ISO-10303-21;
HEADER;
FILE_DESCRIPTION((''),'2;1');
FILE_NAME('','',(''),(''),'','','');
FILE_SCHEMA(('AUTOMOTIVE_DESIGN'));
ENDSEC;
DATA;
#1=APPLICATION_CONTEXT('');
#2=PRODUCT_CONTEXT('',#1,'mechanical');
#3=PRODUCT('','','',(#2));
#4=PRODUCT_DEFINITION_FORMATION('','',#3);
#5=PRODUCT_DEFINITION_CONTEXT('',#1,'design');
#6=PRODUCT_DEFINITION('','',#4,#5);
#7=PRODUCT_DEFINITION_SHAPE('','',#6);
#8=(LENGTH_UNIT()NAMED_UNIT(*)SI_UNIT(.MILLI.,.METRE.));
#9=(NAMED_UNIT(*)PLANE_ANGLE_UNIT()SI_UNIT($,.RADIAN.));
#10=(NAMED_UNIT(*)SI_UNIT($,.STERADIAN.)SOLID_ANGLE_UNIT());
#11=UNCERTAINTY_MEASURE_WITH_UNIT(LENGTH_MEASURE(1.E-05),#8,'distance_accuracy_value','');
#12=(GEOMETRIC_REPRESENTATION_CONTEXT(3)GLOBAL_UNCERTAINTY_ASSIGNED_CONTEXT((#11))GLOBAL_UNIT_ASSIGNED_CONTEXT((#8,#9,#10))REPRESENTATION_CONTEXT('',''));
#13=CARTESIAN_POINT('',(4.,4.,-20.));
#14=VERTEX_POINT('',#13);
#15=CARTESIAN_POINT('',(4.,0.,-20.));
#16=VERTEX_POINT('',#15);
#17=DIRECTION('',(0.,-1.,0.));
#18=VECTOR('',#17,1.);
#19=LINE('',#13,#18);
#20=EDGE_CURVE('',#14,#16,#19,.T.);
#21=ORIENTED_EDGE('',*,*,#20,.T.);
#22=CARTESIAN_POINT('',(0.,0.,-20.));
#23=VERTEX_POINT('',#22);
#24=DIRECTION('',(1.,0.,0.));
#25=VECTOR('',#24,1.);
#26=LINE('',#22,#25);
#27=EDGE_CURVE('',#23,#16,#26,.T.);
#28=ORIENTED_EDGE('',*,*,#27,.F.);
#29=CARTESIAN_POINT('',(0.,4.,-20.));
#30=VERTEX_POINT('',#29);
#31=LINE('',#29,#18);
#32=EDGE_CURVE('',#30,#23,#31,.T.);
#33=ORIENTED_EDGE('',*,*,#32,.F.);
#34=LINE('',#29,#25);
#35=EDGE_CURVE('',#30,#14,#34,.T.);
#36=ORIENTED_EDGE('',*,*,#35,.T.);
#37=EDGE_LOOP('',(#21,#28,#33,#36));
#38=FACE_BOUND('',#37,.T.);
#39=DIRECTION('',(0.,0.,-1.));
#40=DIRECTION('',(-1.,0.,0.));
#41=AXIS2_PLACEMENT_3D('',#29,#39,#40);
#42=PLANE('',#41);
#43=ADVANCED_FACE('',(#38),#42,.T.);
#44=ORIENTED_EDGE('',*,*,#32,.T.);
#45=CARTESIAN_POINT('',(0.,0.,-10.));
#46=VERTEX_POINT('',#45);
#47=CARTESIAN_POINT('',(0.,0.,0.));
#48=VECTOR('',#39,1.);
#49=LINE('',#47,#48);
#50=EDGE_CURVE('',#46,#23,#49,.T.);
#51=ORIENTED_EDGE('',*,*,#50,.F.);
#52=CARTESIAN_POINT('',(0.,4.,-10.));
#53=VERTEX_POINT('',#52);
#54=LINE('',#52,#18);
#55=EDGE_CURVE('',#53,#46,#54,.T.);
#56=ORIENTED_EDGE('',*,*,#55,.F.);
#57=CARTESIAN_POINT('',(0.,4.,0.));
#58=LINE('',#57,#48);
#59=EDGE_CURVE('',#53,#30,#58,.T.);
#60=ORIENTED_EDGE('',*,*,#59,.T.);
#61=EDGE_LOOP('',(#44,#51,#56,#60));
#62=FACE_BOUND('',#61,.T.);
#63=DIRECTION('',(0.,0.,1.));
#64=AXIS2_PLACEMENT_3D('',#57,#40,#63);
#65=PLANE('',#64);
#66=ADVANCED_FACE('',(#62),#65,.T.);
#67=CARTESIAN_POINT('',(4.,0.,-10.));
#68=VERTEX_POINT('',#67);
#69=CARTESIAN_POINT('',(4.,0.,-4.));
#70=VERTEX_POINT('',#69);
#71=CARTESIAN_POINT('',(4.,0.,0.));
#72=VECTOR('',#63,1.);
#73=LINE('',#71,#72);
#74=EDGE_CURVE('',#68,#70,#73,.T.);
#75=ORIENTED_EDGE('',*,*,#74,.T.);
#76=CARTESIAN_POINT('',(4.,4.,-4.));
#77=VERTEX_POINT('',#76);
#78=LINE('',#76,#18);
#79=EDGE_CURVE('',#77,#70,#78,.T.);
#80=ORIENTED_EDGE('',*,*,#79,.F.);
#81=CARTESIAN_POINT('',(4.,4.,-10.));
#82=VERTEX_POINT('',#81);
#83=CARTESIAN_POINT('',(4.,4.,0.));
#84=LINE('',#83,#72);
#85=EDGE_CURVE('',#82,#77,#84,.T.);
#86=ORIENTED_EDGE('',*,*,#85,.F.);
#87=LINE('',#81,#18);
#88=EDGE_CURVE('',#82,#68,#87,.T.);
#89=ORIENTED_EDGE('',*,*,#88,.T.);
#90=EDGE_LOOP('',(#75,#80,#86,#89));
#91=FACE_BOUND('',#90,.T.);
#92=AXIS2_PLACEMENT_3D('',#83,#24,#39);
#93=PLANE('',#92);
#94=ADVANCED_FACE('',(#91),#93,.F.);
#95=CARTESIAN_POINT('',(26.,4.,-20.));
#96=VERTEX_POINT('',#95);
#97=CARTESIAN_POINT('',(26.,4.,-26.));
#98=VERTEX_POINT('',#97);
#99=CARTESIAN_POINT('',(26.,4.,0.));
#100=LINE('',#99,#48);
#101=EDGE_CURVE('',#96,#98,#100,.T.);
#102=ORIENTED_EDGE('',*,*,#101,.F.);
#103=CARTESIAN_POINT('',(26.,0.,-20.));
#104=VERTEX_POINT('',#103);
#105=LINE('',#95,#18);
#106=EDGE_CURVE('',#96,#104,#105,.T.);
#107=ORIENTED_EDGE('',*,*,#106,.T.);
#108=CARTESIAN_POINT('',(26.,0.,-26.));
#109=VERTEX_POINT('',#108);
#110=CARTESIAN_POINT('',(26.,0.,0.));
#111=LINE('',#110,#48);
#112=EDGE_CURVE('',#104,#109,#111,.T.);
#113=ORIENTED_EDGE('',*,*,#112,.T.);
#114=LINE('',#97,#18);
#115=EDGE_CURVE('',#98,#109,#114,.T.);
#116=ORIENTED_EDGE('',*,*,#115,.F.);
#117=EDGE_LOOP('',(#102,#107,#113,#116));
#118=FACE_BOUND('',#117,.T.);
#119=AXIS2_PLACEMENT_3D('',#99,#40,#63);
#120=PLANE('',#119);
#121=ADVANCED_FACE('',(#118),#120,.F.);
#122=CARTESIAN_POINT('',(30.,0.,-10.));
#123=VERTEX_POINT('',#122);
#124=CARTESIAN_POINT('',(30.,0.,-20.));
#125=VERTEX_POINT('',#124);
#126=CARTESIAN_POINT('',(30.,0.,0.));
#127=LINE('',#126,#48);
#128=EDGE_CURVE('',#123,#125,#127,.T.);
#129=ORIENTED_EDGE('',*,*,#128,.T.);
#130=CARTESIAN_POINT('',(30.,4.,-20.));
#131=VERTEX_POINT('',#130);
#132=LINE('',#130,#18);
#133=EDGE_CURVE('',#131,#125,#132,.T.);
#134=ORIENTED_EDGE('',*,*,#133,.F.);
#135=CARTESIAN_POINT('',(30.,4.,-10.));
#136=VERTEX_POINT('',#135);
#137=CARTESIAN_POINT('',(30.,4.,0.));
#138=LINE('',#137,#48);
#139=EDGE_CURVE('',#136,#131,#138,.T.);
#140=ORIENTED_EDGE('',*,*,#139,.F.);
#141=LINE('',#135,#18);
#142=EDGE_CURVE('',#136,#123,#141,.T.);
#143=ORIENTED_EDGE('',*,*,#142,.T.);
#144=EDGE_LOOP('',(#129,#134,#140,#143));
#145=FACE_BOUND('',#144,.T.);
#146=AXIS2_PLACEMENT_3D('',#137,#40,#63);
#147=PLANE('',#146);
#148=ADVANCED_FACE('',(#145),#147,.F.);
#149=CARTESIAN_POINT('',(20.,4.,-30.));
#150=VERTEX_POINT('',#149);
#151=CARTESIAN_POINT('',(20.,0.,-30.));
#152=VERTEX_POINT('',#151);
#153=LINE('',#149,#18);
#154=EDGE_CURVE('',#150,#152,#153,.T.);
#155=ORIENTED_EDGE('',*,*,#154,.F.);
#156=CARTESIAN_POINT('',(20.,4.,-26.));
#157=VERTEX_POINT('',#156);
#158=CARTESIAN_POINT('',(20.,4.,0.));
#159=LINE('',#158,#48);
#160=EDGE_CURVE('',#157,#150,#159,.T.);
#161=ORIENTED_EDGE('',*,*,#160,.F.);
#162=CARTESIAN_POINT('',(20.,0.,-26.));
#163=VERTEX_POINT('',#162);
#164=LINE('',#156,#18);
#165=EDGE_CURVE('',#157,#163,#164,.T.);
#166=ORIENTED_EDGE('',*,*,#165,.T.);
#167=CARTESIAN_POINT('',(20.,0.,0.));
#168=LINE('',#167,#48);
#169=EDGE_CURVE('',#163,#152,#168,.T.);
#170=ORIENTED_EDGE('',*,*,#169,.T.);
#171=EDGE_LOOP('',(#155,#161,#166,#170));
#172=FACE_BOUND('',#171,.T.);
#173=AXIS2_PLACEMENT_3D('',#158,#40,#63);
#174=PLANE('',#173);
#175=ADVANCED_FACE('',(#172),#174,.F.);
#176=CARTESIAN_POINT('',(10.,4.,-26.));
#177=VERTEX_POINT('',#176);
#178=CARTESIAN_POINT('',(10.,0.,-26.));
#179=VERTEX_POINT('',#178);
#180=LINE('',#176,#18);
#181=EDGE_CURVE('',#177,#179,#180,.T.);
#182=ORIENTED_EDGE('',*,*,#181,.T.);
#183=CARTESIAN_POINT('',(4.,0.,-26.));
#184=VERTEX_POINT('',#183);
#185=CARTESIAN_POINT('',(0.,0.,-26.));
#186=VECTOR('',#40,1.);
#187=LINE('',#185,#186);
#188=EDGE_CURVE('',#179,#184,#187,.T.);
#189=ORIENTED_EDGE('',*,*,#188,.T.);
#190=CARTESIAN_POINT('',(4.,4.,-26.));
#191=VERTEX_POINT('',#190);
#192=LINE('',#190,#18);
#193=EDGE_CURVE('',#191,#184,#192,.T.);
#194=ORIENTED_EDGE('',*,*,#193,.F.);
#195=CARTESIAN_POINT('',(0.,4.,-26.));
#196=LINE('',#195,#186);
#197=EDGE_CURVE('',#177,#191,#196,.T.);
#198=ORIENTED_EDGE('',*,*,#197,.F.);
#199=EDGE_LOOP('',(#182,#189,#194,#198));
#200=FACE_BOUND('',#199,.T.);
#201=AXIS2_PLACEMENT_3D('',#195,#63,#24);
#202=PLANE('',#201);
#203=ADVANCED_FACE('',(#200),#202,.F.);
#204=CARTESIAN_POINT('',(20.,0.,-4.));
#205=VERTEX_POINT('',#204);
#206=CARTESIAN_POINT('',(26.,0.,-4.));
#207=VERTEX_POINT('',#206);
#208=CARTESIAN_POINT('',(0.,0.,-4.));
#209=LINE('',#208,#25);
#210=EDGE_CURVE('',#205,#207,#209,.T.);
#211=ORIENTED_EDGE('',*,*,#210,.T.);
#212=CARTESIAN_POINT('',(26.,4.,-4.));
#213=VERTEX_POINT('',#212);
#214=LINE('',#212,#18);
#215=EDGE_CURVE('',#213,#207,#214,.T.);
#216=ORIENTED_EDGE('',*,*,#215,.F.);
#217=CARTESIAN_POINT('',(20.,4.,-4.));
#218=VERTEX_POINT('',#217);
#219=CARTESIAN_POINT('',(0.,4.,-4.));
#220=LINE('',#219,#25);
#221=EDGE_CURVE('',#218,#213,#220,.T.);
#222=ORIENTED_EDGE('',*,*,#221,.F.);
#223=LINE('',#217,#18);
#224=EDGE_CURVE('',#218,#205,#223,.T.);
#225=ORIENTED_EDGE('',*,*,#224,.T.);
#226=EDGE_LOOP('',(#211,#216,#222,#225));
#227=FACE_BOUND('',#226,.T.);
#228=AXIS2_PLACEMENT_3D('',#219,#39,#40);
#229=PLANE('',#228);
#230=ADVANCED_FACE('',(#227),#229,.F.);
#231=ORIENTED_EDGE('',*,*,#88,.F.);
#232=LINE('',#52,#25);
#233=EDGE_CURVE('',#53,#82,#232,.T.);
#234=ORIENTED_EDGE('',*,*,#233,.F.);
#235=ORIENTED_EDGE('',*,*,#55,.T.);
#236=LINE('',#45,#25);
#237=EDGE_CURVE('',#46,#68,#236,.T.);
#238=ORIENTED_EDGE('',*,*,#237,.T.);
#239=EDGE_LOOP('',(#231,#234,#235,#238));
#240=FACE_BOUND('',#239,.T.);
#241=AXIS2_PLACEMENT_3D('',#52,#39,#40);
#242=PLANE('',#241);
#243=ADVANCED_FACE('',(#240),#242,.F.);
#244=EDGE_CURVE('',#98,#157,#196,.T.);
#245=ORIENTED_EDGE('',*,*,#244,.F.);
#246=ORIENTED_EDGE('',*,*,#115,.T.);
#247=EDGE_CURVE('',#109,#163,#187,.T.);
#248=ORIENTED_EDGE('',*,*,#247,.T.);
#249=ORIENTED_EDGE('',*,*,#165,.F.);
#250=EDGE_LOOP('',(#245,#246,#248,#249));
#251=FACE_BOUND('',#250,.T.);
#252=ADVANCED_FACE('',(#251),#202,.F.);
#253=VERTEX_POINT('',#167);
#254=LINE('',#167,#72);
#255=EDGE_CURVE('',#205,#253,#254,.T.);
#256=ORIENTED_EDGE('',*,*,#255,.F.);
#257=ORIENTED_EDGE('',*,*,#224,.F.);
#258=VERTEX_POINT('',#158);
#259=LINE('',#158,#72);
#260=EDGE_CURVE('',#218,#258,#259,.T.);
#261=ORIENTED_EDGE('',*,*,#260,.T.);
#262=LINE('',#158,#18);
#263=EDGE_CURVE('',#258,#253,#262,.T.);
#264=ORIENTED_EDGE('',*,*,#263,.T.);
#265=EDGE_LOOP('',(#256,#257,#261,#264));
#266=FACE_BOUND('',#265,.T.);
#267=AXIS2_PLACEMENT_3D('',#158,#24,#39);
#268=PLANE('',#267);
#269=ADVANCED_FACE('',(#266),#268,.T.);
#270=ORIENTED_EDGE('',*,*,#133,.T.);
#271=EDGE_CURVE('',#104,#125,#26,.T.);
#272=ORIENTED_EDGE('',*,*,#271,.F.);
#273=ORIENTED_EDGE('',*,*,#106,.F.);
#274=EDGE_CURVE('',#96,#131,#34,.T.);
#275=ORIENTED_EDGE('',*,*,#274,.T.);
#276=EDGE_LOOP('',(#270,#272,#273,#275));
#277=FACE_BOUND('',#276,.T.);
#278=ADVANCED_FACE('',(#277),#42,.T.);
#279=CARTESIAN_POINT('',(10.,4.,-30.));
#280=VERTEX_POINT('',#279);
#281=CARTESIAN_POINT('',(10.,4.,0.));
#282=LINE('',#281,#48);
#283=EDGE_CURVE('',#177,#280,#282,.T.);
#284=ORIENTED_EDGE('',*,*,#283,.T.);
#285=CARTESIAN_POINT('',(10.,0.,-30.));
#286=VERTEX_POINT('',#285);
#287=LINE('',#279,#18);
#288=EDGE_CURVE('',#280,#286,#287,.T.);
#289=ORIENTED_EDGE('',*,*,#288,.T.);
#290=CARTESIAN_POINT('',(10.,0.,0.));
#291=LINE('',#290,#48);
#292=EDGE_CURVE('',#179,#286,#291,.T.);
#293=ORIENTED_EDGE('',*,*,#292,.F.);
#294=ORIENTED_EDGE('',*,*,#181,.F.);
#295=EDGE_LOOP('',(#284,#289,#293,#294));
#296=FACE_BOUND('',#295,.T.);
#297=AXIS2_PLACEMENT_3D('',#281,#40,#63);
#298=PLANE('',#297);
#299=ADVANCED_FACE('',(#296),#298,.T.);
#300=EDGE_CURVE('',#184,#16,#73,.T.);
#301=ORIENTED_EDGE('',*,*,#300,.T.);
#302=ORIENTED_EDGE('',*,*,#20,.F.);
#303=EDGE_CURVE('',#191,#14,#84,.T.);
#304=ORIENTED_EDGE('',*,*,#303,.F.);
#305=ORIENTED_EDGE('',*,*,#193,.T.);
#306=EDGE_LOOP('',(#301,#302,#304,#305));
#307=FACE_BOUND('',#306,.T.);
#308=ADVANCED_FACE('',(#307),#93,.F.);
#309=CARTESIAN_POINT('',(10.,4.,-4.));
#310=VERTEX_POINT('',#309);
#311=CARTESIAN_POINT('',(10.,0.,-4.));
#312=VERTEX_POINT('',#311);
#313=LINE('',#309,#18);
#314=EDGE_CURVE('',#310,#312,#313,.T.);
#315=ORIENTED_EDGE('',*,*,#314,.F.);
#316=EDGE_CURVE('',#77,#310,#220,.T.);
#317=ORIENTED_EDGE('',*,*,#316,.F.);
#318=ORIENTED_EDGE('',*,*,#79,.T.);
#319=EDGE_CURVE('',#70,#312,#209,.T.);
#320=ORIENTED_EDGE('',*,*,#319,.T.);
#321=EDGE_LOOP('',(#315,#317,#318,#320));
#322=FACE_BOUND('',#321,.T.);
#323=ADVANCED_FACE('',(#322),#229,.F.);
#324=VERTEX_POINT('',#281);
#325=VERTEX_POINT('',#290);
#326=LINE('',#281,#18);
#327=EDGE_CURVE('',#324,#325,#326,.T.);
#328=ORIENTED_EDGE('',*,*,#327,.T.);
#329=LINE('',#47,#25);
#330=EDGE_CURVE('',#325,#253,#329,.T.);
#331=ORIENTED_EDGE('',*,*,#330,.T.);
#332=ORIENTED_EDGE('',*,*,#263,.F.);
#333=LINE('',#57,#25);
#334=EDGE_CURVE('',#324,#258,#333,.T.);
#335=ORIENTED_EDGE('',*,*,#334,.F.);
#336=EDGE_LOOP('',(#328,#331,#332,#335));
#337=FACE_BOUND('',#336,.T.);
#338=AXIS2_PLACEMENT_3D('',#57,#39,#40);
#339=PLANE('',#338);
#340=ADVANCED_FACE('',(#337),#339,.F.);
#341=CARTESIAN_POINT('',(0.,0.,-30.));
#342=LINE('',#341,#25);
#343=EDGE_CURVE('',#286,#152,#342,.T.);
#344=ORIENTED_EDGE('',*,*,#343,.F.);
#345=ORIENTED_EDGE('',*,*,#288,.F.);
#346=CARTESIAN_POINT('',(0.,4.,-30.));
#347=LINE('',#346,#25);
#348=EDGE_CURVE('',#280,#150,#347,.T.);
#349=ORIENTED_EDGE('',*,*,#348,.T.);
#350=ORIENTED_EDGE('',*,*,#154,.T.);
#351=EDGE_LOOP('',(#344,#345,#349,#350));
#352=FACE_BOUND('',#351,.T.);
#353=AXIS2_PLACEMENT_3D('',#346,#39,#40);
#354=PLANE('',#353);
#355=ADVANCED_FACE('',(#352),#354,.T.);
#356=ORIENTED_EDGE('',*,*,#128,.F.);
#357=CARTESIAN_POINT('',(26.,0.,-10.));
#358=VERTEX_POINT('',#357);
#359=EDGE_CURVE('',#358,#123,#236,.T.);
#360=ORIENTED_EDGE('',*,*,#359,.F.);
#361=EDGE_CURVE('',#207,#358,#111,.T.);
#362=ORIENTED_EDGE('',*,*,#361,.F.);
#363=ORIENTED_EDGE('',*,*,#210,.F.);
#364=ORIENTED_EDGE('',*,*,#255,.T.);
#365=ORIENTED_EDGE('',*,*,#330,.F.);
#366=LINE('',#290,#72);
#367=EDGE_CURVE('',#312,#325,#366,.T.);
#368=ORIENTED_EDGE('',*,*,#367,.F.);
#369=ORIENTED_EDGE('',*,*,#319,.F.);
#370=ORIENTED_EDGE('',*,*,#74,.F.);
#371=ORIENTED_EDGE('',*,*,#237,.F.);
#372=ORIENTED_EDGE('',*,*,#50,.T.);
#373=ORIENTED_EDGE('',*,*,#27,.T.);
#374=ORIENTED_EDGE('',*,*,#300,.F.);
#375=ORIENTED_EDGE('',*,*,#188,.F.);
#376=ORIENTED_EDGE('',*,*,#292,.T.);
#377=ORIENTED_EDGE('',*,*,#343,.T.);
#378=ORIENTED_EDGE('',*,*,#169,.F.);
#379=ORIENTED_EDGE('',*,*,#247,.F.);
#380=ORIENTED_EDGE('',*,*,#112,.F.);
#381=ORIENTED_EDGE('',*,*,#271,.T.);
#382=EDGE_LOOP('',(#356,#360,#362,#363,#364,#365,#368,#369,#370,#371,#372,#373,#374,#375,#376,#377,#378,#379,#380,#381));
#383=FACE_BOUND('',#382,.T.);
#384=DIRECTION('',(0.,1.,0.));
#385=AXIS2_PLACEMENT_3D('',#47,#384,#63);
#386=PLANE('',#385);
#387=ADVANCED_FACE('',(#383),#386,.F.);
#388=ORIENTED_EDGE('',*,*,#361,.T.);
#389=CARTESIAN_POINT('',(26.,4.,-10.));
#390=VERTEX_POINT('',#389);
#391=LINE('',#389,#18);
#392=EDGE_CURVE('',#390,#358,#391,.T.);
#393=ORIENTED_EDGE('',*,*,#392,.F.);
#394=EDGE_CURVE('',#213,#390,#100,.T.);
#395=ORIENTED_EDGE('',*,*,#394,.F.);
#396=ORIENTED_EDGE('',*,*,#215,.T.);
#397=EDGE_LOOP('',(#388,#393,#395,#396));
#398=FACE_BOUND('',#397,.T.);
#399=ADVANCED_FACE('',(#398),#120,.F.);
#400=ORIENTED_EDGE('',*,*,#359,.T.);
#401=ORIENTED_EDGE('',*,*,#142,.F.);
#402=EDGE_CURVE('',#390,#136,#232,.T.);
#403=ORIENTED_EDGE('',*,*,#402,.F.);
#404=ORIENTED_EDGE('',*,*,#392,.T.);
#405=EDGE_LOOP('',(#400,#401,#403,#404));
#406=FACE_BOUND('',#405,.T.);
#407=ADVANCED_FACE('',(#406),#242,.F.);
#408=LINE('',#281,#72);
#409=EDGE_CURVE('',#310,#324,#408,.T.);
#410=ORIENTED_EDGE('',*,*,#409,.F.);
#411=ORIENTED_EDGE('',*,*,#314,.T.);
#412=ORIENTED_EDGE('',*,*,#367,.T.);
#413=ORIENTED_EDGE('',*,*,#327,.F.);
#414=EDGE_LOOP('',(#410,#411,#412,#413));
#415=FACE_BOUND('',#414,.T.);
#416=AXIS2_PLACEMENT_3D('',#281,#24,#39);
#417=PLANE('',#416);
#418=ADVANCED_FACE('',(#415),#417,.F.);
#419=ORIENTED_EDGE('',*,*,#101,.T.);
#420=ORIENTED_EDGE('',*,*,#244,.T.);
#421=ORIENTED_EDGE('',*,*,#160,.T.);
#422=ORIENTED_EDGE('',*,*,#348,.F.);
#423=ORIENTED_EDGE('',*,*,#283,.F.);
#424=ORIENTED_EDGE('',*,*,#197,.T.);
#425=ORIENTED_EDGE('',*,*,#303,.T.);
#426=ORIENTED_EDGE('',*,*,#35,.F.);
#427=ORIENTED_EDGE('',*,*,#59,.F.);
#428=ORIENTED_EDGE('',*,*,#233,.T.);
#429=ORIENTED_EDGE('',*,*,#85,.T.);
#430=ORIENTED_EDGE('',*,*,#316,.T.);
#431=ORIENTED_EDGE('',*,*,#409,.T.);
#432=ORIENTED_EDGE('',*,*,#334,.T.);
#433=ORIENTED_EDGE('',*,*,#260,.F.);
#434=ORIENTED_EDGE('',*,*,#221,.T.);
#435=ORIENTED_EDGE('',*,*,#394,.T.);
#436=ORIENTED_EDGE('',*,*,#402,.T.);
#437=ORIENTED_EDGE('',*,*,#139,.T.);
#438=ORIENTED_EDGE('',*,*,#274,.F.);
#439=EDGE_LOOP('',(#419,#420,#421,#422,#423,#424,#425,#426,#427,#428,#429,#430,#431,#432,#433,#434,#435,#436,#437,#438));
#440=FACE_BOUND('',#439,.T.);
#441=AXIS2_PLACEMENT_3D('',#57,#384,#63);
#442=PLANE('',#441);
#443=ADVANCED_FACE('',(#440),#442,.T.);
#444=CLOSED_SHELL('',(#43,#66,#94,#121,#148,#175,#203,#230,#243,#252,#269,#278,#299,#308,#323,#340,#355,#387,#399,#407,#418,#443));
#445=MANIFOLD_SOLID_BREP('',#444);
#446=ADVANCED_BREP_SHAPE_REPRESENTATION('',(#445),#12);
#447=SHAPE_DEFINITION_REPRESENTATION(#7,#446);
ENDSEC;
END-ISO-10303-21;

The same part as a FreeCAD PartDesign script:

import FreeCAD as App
import Part
import Sketcher
Q = App.Units.Quantity


def add_polygon(sketch, points):
    """Adds a closed chain of lines whose ends are joined by coincident constraints."""
    first, n = sketch.GeometryCount, len(points)
    for a, b in zip(points, points[1:] + points[:1]):
        sketch.addGeometry(Part.LineSegment(App.Vector(*a, 0), App.Vector(*b, 0)), False)
    for i in range(n):
        sketch.addConstraint(Sketcher.Constraint("Coincident", first + i, 2, first + (i + 1) % n, 1))

doc = App.newDocument("Part")
body = doc.addObject("PartDesign::Body", "Body")

# Sketch on XZ plane
sketch1 = doc.addObject("Sketcher::SketchObject", "Sketch")
body.addObject(sketch1)
sketch1.AttachmentSupport = (doc.XZ_Plane, [""])
sketch1.MapMode = "FlatFace"
add_polygon(sketch1, [(4, -4), (10, -4), (10, 0), (20, 0), (20, -4), (26, -4), (26, -10), (30, -10), (30, -20), (26, -20), (26, -26), (20, -26), (20, -30), (10, -30), (10, -26), (4, -26), (4, -20), (0, -20), (0, -10), (4, -10)])  # lines 0-19
sketch1.addConstraint([
    Sketcher.Constraint("Horizontal", 0),
    Sketcher.Constraint("Vertical", 1),
    Sketcher.Constraint("Horizontal", 2),
    Sketcher.Constraint("Vertical", 3),
    Sketcher.Constraint("Horizontal", 4),
    Sketcher.Constraint("Vertical", 5),
    Sketcher.Constraint("Horizontal", 6),
    Sketcher.Constraint("Vertical", 7),
    Sketcher.Constraint("Horizontal", 8),
    Sketcher.Constraint("Vertical", 9),
    Sketcher.Constraint("Horizontal", 10),
    Sketcher.Constraint("Vertical", 11),
    Sketcher.Constraint("Horizontal", 12),
    Sketcher.Constraint("Vertical", 13),
    Sketcher.Constraint("Horizontal", 14),
    Sketcher.Constraint("Vertical", 15),
    Sketcher.Constraint("Horizontal", 16),
    Sketcher.Constraint("Vertical", 17),
    Sketcher.Constraint("Horizontal", 18),
    Sketcher.Constraint("Vertical", 19),
    Sketcher.Constraint("PointOnObject", 1, 2, -1),
    Sketcher.Constraint("PointOnObject", 16, 2, -2),
    Sketcher.Constraint("Horizontal", 0, 2, 3, 2),
    Sketcher.Constraint("Horizontal", 10, 2, 13, 2),
    Sketcher.Constraint("Horizontal", 8, 2, 15, 2),
    Sketcher.Constraint("Horizontal", 6, 2, 17, 2),
    Sketcher.Constraint("Vertical", 5, 2, 8, 2),
    Sketcher.Constraint("Vertical", 3, 2, 10, 2),
    Sketcher.Constraint("Vertical", 1, 2, 12, 2),
    Sketcher.Constraint("Vertical", 15, 2, 18, 2),
    Sketcher.Constraint("Equal", 0, 4),
    Sketcher.Constraint("Equal", 8, 16),
    Sketcher.Constraint("Equal", 18, 1),
    Sketcher.Constraint("Equal", 14, 5),
    Sketcher.Constraint("Equal", 12, 7),
    Sketcher.Constraint("Equal", 5, 9),
    Sketcher.Constraint("Equal", 3, 11),
    Sketcher.Constraint("DistanceX", 0, 1, 0, 2, Q("6 mm")),
    Sketcher.Constraint("DistanceX", 2, 1, 2, 2, Q("10 mm")),
    Sketcher.Constraint("DistanceX", 6, 1, 6, 2, Q("4 mm")),
])
pad1 = doc.addObject("PartDesign::Pad", "Pad")
body.addObject(pad1)
pad1.Profile = sketch1
pad1.Length = 4
pad1.Reversed = True

doc.recompute()
